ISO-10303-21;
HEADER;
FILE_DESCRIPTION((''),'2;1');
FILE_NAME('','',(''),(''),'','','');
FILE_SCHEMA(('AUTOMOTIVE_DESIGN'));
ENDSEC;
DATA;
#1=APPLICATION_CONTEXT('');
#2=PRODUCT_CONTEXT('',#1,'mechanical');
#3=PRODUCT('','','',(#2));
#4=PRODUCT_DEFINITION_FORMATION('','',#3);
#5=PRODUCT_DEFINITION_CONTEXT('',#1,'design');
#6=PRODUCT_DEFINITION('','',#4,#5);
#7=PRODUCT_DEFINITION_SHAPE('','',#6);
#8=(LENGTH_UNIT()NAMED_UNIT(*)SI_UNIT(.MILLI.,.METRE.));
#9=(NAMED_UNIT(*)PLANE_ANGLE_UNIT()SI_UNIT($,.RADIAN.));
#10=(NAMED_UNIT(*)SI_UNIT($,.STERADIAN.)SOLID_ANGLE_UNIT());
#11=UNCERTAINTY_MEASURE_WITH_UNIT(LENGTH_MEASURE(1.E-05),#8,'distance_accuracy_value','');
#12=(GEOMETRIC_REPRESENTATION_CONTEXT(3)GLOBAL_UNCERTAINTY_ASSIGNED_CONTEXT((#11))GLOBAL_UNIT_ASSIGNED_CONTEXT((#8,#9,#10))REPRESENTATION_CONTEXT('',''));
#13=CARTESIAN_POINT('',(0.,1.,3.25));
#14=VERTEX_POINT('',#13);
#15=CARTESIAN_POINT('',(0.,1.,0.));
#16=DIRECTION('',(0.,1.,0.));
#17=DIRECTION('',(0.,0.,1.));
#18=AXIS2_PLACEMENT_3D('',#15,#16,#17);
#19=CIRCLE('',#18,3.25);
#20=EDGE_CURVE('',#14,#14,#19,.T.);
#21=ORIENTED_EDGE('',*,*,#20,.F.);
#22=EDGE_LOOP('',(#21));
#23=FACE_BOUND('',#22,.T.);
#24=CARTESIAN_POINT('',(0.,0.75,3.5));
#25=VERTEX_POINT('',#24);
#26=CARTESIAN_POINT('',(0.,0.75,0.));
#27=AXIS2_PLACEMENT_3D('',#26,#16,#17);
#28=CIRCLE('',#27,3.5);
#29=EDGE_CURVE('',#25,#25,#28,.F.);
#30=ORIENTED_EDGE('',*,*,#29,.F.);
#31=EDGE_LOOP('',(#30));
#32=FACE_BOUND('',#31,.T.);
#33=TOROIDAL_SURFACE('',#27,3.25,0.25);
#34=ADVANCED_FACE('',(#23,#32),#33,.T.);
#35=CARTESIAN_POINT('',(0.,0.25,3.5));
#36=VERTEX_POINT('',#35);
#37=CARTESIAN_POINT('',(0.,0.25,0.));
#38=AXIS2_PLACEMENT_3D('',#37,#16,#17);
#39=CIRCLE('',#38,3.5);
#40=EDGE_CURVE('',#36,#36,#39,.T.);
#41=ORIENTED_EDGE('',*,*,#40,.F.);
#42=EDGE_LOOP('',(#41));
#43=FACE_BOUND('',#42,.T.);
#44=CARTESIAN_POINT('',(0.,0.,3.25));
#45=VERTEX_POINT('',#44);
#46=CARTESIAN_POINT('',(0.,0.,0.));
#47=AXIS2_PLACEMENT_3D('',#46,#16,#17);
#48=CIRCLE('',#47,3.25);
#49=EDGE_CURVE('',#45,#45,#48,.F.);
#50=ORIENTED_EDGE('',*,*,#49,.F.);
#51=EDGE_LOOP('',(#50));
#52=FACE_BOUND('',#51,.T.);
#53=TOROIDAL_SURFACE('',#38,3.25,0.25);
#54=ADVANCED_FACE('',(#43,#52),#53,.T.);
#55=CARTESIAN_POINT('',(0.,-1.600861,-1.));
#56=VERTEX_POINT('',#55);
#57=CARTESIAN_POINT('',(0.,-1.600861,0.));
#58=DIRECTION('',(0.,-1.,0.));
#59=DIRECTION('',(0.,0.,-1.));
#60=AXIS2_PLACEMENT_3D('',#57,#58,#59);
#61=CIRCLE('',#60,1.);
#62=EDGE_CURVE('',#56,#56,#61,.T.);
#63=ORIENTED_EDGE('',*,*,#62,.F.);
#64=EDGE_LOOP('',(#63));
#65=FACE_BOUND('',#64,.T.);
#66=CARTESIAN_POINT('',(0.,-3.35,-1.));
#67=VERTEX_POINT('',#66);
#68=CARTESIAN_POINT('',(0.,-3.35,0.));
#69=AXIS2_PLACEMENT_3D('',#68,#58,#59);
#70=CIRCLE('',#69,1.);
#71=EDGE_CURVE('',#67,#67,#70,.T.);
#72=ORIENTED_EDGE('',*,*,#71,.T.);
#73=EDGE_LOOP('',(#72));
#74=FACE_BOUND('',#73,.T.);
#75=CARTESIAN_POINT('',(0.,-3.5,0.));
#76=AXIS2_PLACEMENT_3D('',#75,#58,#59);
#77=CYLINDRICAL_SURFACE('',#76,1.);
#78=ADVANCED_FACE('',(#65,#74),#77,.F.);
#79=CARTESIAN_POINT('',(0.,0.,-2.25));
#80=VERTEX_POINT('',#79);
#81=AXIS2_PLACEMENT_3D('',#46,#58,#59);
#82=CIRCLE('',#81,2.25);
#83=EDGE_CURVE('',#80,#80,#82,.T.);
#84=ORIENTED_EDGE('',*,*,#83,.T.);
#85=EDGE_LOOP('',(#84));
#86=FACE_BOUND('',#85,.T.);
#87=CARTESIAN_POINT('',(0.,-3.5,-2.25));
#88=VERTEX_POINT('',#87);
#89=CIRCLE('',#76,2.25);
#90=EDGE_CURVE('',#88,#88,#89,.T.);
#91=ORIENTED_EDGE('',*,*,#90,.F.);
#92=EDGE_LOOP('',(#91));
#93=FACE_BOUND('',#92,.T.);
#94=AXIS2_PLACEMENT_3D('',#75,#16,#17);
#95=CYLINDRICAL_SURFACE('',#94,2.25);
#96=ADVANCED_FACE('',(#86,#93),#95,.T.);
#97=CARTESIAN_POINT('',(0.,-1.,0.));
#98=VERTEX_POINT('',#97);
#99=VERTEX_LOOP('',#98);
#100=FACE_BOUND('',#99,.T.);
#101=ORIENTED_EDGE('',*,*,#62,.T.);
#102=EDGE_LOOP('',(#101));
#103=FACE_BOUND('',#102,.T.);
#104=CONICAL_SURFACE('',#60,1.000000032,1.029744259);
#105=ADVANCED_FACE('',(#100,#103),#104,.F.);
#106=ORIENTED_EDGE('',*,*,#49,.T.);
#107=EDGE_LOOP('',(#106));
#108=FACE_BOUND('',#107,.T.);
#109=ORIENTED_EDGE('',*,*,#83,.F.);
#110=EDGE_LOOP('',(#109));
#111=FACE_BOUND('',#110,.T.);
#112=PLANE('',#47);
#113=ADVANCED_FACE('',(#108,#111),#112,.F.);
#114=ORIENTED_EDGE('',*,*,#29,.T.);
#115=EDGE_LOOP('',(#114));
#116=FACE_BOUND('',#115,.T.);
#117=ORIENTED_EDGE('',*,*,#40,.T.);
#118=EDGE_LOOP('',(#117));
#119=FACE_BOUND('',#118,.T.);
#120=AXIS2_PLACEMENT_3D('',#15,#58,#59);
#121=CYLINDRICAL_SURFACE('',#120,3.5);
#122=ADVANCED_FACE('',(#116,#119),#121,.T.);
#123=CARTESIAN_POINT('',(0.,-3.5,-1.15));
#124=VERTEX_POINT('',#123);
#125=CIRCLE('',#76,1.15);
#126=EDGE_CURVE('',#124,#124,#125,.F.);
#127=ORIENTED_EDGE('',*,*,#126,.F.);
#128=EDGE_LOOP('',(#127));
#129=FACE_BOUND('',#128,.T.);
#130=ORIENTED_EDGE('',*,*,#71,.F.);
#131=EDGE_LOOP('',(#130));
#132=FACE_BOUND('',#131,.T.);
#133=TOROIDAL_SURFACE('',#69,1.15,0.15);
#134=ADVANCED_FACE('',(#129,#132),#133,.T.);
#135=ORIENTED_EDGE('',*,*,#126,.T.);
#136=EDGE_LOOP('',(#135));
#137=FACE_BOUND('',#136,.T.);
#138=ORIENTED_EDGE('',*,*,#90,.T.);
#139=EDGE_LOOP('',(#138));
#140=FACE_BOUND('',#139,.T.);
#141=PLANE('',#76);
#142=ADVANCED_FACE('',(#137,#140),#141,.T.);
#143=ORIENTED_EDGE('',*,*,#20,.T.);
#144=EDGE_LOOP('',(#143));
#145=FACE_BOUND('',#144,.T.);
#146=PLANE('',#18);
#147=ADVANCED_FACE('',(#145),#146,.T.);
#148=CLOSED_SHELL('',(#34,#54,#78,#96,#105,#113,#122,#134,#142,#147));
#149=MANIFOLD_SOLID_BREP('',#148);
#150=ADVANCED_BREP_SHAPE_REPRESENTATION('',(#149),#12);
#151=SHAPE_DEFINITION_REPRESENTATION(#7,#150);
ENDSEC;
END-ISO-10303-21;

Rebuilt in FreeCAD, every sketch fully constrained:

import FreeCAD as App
import Part
import Sketcher

V = App.Vector


def edges_at(feature, points):
    """Names of the edges that pass closest to the given points."""
    edges = feature.Shape.Edges
    near = lambda p: min(range(len(edges)), key=lambda i: edges[i].distToShape(Part.Vertex(*p))[0])
    return sorted({f"Edge{near(p) + 1}" for p in points})

doc = App.newDocument("Part")
body = doc.addObject("PartDesign::Body", "Body")

sketch1 = body.newObject("Sketcher::SketchObject", "Sketch")
sketch1.AttachmentSupport = (doc.getObject("XZ_Plane"), [""])
sketch1.MapMode = "FlatFace"
sketch1.addGeometry(Part.Circle(V(0, 0, 0), V(0, 0, 1), 3.5), False)
sketch1.addConstraint(Sketcher.Constraint("Coincident", 0, 3, -1, 1))
sketch1.addConstraint(Sketcher.Constraint("Diameter", 0, 7.0))
pad1 = body.newObject("PartDesign::Pad", "Pad")
pad1.Profile = sketch1
pad1.Length = 1
pad1.Reversed = True

sketch2 = body.newObject("Sketcher::SketchObject", "Sketch001")
sketch2.AttachmentSupport = (doc.getObject("XZ_Plane"), [""])
sketch2.MapMode = "FlatFace"
sketch2.addGeometry(Part.Circle(V(0, 0, 0), V(0, 0, 1), 2.2), False)
sketch2.addConstraint(Sketcher.Constraint("Coincident", 0, 3, -1, 1))
sketch2.addConstraint(Sketcher.Constraint("Diameter", 0, 4.5))
pad2 = body.newObject("PartDesign::Pad", "Pad001")
pad2.Profile = sketch2
pad2.Length = 3.5
doc.recompute()

fillet = body.newObject("PartDesign::Fillet", "Fillet")
fillet.Base = (pad2, edges_at(pad2, [(0, 0, -3.5), (0, 1, -3.5)]))
fillet.Radius = 0.25

sketch3 = body.newObject("Sketcher::SketchObject", "Sketch002")
sketch3.AttachmentSupport = (doc.getObject("XZ_Plane"), [""])
sketch3.MapMode = "FlatFace"
sketch3.AttachmentOffset = App.Placement(V(0, 0, 3.5), App.Rotation())
sketch3.addGeometry(Part.Circle(V(0, 0, 0), V(0, 0, 1), 1), False)
sketch3.addConstraint(Sketcher.Constraint("Coincident", 0, 3, -1, 1))
sketch3.addConstraint(Sketcher.Constraint("Diameter", 0, 2.0))
doc.recompute()
hole = body.newObject("PartDesign::Hole", "Hole")
hole.Profile = sketch3
hole.ThreadType = "None"
hole.Diameter = 2
hole.DepthType = "Dimension"
hole.Depth = 1.899139
hole.DrillPoint = "Angled"
hole.DrillPointAngle = 118
doc.recompute()

fillet2 = body.newObject("PartDesign::Fillet", "Fillet001")
fillet2.Base = (hole, edges_at(hole, [(-1, -3.5, 0)]))
fillet2.Radius = 0.15

doc.recompute()
